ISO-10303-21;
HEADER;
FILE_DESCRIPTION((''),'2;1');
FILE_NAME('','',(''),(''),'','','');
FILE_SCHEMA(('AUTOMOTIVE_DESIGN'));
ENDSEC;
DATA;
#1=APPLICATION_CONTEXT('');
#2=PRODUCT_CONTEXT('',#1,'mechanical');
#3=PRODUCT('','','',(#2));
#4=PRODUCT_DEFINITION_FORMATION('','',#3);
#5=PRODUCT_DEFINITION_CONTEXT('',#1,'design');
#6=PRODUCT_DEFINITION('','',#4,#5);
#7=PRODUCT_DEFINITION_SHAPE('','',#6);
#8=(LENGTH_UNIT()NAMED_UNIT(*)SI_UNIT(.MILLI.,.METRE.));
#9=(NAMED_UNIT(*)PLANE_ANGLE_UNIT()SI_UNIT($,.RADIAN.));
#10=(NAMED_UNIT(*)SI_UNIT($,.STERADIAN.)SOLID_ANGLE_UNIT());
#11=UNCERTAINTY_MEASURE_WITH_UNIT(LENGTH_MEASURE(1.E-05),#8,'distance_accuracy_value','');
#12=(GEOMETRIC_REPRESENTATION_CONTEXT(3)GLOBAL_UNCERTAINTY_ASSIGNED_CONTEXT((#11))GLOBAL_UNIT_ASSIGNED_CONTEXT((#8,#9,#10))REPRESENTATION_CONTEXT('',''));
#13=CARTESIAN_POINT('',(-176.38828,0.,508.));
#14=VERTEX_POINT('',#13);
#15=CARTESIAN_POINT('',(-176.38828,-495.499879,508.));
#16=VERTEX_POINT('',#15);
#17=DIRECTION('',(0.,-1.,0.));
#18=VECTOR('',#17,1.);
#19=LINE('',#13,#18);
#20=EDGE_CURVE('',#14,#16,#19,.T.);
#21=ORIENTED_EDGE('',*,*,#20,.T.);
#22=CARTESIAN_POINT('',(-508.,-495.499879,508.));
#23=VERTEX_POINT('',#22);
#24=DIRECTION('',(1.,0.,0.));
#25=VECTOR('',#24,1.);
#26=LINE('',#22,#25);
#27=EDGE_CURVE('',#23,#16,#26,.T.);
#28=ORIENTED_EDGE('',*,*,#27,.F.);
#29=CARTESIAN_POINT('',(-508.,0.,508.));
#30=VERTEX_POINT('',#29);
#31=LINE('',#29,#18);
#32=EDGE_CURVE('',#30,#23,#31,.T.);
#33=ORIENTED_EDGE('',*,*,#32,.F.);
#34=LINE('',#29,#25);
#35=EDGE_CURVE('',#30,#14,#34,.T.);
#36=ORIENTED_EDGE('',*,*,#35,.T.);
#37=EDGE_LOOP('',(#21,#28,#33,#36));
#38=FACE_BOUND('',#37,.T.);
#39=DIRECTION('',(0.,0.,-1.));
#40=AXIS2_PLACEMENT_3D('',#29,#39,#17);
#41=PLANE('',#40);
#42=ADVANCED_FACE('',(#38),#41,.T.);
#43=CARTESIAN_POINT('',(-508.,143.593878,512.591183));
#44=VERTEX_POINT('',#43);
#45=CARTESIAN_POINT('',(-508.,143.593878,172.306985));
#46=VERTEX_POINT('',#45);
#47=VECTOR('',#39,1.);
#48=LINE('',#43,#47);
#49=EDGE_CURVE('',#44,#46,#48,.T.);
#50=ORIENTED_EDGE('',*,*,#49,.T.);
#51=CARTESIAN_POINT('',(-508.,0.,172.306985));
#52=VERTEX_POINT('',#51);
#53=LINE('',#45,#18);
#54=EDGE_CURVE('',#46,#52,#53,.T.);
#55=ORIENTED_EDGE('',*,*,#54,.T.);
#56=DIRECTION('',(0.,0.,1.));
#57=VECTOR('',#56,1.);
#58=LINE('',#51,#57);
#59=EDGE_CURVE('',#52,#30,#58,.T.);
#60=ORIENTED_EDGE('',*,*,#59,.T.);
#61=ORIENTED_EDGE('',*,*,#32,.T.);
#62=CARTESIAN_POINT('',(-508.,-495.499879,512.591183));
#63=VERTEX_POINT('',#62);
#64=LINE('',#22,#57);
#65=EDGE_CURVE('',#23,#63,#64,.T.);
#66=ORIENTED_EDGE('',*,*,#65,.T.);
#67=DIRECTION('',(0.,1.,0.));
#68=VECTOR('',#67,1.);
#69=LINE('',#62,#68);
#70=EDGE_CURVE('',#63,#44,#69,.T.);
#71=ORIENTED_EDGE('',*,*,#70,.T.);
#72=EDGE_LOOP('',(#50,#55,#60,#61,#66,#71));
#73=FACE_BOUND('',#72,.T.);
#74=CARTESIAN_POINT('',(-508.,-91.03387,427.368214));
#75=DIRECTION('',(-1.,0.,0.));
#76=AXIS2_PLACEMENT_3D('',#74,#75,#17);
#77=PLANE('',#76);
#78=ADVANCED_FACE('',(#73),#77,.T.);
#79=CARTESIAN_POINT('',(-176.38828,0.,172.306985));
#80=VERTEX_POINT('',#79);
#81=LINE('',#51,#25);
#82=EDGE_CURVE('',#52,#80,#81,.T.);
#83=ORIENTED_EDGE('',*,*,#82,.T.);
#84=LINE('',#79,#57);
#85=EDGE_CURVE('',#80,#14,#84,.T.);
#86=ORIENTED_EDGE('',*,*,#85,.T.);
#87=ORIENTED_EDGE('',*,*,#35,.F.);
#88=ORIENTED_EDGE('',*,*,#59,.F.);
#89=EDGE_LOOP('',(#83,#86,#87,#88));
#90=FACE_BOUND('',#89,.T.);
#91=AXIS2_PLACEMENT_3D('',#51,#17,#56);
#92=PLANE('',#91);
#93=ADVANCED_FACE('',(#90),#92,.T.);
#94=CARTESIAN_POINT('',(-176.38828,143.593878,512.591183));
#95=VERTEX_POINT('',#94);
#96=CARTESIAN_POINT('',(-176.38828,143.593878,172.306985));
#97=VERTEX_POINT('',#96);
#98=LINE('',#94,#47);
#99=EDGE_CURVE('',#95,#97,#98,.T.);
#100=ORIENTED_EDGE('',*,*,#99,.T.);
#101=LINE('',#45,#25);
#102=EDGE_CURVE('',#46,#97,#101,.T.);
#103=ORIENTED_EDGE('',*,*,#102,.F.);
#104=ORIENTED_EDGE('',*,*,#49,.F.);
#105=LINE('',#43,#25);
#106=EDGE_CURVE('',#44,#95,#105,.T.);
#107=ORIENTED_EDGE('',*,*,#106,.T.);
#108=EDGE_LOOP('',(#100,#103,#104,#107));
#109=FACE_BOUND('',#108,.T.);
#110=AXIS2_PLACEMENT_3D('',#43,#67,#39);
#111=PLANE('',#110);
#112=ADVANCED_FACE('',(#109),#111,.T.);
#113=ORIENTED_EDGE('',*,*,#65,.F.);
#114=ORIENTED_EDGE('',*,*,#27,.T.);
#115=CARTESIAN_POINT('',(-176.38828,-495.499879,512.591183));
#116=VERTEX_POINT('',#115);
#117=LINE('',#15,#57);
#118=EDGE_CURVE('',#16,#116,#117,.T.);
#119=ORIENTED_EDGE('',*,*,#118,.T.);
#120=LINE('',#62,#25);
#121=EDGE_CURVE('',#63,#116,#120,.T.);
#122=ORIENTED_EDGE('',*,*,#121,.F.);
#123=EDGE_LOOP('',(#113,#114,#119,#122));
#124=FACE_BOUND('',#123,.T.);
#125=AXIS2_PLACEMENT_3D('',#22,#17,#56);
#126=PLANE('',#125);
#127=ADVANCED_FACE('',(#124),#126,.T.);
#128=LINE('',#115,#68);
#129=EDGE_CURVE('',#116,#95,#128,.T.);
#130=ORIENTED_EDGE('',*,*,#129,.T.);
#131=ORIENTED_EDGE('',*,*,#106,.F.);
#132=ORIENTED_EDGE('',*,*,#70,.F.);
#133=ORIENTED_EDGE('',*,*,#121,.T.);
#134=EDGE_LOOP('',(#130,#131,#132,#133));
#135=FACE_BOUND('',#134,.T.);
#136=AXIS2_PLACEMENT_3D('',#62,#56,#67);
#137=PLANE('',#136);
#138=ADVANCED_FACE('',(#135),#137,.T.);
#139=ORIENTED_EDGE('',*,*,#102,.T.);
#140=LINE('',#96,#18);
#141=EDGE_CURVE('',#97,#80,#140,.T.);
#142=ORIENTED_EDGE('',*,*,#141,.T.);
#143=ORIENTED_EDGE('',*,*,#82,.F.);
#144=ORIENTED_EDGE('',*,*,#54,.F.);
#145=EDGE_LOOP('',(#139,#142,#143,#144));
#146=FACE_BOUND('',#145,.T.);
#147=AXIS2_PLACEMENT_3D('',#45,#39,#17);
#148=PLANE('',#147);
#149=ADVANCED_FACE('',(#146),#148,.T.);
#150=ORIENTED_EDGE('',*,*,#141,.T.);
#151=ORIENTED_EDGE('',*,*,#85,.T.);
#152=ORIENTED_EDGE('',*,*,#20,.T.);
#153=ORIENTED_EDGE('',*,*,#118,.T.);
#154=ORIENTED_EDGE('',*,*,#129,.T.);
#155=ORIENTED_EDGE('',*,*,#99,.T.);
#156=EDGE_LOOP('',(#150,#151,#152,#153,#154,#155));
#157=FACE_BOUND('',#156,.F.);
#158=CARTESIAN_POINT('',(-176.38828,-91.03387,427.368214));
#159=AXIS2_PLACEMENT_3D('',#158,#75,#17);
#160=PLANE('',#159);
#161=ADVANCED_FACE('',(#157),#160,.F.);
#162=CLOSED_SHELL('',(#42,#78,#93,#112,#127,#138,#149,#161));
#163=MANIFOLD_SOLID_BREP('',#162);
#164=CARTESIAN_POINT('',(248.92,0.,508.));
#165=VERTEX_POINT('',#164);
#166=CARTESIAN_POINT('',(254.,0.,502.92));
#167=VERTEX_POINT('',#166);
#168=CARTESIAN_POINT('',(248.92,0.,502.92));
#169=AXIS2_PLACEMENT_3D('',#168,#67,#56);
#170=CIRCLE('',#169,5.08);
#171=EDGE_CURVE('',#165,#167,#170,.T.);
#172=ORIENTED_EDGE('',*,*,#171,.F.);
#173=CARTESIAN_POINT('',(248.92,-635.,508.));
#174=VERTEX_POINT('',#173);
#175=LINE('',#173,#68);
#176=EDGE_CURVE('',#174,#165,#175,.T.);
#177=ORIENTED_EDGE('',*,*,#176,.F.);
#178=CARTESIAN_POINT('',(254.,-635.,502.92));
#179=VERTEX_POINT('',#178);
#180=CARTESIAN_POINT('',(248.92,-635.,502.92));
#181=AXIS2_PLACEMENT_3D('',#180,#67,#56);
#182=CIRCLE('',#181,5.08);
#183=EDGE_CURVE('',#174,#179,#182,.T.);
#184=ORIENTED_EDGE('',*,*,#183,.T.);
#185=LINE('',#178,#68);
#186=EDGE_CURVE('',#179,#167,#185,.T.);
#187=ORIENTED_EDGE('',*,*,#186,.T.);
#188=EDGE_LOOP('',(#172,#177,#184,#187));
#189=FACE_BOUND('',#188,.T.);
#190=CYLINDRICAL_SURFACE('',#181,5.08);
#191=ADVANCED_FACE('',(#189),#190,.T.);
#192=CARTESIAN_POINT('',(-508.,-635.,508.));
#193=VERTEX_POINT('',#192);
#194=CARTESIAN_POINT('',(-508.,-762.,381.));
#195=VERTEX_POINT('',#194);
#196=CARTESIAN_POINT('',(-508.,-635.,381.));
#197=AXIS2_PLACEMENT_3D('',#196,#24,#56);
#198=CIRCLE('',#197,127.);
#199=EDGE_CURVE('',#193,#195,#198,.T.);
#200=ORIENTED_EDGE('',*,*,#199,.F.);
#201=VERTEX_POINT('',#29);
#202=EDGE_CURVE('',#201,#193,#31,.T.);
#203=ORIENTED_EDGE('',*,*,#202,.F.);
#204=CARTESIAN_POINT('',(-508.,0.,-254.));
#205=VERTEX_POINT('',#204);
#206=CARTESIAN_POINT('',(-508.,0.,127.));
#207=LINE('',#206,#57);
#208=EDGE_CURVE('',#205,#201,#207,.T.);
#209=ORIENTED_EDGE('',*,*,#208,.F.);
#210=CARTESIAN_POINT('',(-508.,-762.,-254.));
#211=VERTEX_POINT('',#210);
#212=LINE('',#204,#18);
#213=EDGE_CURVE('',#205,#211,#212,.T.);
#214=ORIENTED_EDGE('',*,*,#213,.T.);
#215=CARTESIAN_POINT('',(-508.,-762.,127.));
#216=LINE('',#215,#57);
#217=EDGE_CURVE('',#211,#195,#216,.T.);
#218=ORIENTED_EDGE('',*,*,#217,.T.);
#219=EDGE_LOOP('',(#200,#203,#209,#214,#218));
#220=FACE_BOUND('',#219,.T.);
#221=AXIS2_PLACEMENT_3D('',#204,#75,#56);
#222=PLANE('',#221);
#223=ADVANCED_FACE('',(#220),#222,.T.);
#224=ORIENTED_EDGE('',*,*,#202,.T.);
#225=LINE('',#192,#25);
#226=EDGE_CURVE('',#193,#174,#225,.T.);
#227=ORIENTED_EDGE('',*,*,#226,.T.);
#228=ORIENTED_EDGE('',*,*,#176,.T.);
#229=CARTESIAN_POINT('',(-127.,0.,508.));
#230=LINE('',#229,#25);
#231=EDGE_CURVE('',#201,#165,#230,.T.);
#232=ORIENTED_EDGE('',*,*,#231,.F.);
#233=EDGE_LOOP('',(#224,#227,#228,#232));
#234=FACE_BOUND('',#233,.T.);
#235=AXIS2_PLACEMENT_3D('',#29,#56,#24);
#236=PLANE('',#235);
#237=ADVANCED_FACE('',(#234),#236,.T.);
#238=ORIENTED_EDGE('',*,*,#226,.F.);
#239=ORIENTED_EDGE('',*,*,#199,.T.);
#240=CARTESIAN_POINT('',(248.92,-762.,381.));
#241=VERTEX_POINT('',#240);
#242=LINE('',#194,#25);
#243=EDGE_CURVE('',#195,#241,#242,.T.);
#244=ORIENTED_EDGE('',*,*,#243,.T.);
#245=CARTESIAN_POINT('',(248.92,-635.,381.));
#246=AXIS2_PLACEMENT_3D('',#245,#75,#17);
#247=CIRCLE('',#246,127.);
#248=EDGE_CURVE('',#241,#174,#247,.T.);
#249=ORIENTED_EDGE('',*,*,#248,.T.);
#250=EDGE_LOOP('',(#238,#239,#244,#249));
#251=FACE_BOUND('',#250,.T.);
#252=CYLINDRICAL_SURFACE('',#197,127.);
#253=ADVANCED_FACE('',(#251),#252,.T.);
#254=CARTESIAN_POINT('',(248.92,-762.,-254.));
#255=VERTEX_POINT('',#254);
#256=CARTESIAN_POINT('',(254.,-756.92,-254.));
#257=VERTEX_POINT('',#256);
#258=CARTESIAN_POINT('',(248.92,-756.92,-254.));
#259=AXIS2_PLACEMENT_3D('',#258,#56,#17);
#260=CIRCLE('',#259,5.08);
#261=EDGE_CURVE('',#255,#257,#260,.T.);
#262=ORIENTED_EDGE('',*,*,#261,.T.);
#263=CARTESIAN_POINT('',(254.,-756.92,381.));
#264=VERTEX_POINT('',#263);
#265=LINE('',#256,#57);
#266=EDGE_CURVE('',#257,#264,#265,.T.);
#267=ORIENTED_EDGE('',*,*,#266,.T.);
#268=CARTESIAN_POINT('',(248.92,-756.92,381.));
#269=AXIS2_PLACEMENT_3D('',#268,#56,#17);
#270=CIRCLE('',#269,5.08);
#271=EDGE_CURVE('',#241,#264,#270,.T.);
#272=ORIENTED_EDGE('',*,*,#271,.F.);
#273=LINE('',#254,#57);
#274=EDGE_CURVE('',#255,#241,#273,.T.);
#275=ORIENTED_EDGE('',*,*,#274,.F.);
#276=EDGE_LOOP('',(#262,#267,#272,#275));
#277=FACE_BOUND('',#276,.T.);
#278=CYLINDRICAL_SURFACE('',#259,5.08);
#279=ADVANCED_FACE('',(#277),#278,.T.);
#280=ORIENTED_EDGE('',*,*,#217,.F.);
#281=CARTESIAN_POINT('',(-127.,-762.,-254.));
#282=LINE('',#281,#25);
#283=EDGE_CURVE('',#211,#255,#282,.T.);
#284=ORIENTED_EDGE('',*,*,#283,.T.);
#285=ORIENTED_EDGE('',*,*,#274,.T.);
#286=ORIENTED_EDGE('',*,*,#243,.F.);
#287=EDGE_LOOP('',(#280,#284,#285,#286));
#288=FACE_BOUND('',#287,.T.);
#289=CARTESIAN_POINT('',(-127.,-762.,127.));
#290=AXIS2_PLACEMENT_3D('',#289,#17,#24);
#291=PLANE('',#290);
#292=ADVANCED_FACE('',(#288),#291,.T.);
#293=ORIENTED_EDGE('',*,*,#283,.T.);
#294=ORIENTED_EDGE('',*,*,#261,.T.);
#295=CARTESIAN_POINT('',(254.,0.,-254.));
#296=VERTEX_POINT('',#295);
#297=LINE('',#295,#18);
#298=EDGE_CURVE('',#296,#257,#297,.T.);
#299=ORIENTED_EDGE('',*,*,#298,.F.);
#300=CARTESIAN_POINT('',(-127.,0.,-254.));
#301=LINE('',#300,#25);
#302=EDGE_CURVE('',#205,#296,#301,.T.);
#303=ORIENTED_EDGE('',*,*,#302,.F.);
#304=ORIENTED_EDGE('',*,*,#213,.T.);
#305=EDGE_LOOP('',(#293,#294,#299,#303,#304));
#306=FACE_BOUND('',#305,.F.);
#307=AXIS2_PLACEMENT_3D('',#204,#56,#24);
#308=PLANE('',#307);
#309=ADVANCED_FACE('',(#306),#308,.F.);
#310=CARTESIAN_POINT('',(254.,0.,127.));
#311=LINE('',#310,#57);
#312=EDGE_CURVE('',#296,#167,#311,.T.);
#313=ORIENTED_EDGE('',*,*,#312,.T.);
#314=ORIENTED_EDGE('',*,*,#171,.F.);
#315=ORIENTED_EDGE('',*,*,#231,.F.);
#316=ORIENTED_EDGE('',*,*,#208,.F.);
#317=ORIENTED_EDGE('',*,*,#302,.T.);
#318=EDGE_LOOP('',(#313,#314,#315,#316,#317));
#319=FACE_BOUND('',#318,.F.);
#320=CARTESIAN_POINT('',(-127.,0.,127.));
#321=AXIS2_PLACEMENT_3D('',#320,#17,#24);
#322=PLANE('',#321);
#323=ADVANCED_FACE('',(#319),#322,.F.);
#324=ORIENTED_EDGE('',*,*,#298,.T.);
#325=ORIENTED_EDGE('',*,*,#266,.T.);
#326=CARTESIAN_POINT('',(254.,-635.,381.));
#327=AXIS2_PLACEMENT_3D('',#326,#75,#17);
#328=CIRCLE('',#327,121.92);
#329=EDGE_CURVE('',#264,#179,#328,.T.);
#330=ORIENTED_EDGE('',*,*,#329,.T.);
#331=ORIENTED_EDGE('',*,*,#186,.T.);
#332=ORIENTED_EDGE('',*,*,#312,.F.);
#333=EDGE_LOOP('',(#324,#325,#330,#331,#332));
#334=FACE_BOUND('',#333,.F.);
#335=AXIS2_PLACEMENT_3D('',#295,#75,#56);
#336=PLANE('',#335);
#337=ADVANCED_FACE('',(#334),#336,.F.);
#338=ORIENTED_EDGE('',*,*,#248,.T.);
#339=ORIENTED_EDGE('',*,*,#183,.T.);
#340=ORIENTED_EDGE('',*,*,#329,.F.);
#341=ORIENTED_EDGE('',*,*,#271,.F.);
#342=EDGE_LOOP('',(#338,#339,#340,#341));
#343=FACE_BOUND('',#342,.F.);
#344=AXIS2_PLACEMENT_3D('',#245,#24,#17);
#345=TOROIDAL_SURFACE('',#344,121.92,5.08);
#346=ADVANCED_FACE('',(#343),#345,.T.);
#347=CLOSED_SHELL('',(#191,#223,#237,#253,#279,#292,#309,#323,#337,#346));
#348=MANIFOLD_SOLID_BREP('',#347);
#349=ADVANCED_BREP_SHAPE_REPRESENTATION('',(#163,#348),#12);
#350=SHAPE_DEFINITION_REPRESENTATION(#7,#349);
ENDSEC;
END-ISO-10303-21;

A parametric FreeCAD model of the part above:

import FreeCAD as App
import Part
import Sketcher

V = App.Vector
Q = App.Units.Quantity


def edges_at(feature, points):
    """Names of the edges that pass closest to the given points."""
    edges = feature.Shape.Edges
    near = lambda p: min(range(len(edges)), key=lambda i: edges[i].distToShape(Part.Vertex(*p))[0])
    return sorted({f"Edge{near(p) + 1}" for p in points})

doc = App.newDocument("Part")
body = doc.addObject("PartDesign::Body", "Body")

sketch1 = body.newObject("Sketcher::SketchObject", "Sketch")
sketch1.AttachmentSupport = (doc.getObject("XZ_Plane"), [""])
sketch1.MapMode = "FlatFace"
sketch1.addGeometry([
    Part.LineSegment(V(-508, 508, 0), V(-508, -254, 0)),
    Part.LineSegment(V(-508, -254, 0), V(254, -254, 0)),
    Part.LineSegment(V(254, -254, 0), V(254, 508, 0)),
    Part.LineSegment(V(254, 508, 0), V(-508, 508, 0)),
], False)
sketch1.addConstraint([
    Sketcher.Constraint("Coincident", 0, 2, 1, 1),
    Sketcher.Constraint("Coincident", 1, 2, 2, 1),
    Sketcher.Constraint("Coincident", 2, 2, 3, 1),
    Sketcher.Constraint("Coincident", 3, 2, 0, 1),
    Sketcher.Constraint("Vertical", 0),
    Sketcher.Constraint("Horizontal", 1),
    Sketcher.Constraint("Vertical", 2),
    Sketcher.Constraint("Horizontal", 3),
    Sketcher.Constraint("Equal", 3, 0),
    Sketcher.Constraint("DistanceX", 1, 1, 1, 2, Q("30 in")),
    Sketcher.Constraint("DistanceX", 0, 2, -1, 1, Q("20 in")),
    Sketcher.Constraint("DistanceY", 0, 2, -1, 1, Q("10 in")),
])
pad1 = body.newObject("PartDesign::Pad", "Pad")
pad1.Profile = sketch1
pad1.Length = Q("30 in")
doc.recompute()

fillet = body.newObject("PartDesign::Fillet", "Fillet")
fillet.Base = (pad1, edges_at(pad1, [(-127, -762, 508)]))
fillet.Radius = Q("5 in")
doc.recompute()

fillet2 = body.newObject("PartDesign::Fillet", "Fillet001")
fillet2.Base = (fillet, edges_at(fillet, [(254, -762, 63.5)]))
fillet2.Radius = Q("0.2 in")
body2 = doc.addObject("PartDesign::Body", "Body001")

sketch2 = body2.newObject("Sketcher::SketchObject", "Sketch001")
sketch2.AttachmentSupport = (doc.getObject("YZ_Plane001"), [""])
sketch2.MapMode = "FlatFace"
sketch2.AttachmentOffset = App.Placement(V(0, 0, -20 * 25.4), App.Rotation())
sketch2.addGeometry([
    Part.LineSegment(V(-495.5, 512.6, 0), V(143.6, 512.6, 0)),
    Part.LineSegment(V(143.6, 512.6, 0), V(143.6, 172.3, 0)),
    Part.LineSegment(V(143.6, 172.3, 0), V(0, 172.3, 0)),
    Part.LineSegment(V(0, 172.3, 0), V(0, 508, 0)),
    Part.LineSegment(V(0, 508, 0), V(-495.5, 508, 0)),
    Part.LineSegment(V(-495.5, 508, 0), V(-495.5, 512.6, 0)),
], False)
sketch2.addConstraint([
    Sketcher.Constraint("Coincident", 0, 2, 1, 1),
    Sketcher.Constraint("Coincident", 1, 2, 2, 1),
    Sketcher.Constraint("Coincident", 2, 2, 3, 1),
    Sketcher.Constraint("Coincident", 3, 2, 4, 1),
    Sketcher.Constraint("Coincident", 4, 2, 5, 1),
    Sketcher.Constraint("Coincident", 5, 2, 0, 1),
    Sketcher.Constraint("Horizontal", 0),
    Sketcher.Constraint("Vertical", 1),
    Sketcher.Constraint("Horizontal", 2),
    Sketcher.Constraint("Vertical", 3),
    Sketcher.Constraint("Horizontal", 4),
    Sketcher.Constraint("Vertical", 5),
    Sketcher.Constraint("PointOnObject", 2, 2, -2),
    Sketcher.Constraint("DistanceY", -1, 1, 3, 2, Q("20 in")),
    Sketcher.Constraint("DistanceY", 1, 2, 1, 1, 340.284198),
    Sketcher.Constraint("DistanceX", 4, 2, 4, 1, 495.499879),
    Sketcher.Constraint("DistanceX", 0, 1, 0, 2, 639.093757),
    Sketcher.Constraint("DistanceY", 3, 1, 3, 2, 335.693015),
])
pad2 = body2.newObject("PartDesign::Pad", "Pad001")
pad2.Profile = sketch2
pad2.Length = 331.61172

doc.recompute()
